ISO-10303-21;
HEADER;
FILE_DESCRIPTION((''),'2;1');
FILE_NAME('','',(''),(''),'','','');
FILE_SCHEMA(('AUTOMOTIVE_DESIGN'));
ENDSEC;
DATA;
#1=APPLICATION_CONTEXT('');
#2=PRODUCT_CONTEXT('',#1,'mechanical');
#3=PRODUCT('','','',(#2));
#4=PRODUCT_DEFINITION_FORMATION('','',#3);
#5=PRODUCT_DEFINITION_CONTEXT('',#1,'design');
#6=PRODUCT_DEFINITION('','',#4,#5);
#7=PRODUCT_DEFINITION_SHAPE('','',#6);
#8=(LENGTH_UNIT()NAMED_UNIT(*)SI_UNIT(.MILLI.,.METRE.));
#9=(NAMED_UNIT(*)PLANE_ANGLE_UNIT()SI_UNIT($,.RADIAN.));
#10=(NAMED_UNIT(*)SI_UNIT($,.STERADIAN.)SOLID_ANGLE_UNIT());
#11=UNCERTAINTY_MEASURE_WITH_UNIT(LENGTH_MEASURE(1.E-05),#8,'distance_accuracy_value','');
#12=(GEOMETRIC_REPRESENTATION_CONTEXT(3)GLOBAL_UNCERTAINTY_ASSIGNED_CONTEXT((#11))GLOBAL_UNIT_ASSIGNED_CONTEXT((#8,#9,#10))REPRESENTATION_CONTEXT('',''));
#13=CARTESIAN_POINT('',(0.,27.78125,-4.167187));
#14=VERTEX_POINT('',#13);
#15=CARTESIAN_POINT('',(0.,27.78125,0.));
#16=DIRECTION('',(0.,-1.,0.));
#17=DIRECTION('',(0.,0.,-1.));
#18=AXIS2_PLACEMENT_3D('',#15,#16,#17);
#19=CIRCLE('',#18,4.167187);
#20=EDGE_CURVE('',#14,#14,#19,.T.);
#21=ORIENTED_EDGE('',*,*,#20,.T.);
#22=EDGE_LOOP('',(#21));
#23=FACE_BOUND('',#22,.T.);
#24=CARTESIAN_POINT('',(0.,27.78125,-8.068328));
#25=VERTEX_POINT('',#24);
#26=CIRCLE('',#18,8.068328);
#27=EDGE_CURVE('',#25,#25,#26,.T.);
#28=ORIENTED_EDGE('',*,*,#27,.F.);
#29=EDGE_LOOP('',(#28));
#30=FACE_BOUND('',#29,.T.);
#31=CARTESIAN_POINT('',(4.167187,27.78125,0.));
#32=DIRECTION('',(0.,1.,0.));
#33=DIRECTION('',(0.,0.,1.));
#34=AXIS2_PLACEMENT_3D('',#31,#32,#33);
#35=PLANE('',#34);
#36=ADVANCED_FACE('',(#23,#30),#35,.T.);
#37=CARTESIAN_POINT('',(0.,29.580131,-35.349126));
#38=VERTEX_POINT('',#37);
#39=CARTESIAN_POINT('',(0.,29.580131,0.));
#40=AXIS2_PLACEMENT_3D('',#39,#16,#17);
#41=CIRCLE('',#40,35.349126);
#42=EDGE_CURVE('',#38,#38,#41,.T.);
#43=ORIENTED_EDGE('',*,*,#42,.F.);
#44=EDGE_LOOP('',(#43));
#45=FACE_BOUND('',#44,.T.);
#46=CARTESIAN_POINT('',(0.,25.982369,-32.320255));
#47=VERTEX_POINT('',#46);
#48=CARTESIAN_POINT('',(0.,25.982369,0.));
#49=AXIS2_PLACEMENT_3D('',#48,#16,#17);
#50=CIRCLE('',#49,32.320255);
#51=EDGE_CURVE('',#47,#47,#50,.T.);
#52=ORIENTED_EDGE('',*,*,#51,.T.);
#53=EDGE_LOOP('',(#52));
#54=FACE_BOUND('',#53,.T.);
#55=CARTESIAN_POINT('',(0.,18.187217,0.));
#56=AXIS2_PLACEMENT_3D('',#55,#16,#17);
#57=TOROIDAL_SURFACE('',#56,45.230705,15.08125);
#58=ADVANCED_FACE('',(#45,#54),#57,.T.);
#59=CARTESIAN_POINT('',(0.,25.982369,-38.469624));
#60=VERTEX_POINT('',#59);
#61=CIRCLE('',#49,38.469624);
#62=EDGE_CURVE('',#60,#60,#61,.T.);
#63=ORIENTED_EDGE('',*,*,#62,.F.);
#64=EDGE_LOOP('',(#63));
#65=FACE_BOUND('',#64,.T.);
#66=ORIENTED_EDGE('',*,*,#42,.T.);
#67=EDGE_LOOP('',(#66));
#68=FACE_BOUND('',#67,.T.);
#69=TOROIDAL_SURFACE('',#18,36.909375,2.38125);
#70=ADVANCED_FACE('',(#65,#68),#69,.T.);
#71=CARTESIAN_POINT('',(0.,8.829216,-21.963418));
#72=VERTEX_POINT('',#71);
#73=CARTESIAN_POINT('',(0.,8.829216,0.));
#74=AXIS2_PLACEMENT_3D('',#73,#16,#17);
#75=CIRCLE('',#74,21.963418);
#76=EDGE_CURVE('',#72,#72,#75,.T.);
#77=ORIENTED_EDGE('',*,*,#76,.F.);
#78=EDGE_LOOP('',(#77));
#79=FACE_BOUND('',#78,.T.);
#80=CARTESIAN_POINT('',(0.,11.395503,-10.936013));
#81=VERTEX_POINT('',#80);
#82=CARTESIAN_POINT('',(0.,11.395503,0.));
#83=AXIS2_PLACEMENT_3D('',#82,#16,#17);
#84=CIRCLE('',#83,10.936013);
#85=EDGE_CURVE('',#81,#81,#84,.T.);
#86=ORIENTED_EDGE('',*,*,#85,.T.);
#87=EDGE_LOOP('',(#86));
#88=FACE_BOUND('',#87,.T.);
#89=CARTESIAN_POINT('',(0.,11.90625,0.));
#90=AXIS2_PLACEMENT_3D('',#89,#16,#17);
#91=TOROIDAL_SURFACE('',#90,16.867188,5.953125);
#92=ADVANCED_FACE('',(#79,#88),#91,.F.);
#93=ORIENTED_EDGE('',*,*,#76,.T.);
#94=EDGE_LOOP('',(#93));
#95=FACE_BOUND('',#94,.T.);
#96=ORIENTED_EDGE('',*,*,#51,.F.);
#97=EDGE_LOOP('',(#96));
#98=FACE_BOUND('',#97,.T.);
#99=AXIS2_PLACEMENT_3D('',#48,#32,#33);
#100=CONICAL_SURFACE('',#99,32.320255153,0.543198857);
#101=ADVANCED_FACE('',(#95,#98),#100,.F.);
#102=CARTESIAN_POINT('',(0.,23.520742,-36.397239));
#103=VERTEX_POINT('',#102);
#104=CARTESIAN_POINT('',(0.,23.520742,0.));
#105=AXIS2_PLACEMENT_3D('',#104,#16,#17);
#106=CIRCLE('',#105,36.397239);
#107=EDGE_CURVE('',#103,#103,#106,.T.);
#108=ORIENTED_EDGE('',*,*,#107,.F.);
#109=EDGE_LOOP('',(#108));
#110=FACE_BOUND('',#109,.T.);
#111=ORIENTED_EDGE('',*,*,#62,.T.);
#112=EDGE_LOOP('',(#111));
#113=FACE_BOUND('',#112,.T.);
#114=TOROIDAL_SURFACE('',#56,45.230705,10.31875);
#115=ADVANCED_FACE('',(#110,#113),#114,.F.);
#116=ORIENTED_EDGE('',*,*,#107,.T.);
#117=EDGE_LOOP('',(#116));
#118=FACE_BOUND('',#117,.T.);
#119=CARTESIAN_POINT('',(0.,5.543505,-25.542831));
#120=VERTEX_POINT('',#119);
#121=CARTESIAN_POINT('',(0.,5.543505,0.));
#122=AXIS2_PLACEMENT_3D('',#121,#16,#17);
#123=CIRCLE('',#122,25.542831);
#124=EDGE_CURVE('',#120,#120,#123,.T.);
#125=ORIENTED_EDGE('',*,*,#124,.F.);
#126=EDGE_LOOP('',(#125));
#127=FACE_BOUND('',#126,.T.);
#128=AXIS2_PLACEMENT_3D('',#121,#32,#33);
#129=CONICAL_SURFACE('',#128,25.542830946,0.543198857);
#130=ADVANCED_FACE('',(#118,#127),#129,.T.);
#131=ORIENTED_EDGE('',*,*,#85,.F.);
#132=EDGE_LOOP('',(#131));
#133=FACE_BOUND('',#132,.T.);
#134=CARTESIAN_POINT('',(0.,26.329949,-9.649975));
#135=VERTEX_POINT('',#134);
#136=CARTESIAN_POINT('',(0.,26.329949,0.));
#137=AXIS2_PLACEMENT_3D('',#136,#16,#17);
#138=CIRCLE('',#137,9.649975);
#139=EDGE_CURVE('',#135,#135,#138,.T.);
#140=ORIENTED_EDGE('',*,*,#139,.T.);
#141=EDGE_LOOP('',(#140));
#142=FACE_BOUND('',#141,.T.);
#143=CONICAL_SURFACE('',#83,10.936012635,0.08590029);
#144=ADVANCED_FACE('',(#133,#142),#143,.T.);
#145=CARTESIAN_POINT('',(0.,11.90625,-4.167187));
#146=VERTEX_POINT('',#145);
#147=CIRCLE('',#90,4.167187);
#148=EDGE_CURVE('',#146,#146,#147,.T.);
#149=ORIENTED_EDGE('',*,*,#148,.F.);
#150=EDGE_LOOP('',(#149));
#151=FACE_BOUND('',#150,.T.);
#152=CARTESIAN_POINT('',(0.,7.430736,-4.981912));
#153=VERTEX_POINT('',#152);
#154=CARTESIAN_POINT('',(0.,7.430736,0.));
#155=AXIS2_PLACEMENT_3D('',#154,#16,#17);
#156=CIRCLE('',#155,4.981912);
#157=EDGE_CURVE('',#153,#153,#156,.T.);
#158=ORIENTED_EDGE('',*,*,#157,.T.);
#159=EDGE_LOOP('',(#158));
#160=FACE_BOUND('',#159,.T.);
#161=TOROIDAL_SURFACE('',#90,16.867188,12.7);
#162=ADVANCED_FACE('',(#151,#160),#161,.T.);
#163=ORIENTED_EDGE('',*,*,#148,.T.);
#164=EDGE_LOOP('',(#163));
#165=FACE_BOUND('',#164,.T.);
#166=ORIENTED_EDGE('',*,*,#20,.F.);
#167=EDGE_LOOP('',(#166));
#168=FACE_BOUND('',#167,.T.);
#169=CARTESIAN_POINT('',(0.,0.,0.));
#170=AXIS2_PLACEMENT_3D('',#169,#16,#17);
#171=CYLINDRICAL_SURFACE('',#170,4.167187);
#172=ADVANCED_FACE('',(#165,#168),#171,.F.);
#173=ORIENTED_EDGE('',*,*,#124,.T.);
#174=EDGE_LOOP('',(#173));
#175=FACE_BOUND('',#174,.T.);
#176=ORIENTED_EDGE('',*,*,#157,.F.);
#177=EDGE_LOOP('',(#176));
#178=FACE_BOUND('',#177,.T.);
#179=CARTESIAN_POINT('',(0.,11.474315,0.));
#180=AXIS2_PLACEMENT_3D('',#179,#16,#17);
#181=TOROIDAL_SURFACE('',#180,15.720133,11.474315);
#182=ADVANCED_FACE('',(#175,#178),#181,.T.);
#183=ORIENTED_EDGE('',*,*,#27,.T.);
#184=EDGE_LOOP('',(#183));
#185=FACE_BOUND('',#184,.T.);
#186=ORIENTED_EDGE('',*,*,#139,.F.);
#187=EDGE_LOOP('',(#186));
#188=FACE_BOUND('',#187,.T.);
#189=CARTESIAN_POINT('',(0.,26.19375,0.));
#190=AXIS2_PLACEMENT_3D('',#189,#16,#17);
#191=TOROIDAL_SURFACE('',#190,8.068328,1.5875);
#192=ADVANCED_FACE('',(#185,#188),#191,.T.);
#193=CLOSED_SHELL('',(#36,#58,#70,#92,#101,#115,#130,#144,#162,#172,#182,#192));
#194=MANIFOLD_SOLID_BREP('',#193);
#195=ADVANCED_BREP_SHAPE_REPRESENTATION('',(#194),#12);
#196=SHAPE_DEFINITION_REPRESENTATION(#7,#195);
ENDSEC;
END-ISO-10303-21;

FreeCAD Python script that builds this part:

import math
import FreeCAD as App
import Part
import Sketcher
from FreeCAD import Vector
Q = App.Units.Quantity

doc = App.newDocument("Part")
params = doc.addObject("Spreadsheet::Sheet", "Params")
for row, (alias, value) in enumerate([
    ("sketch1_radius", "0.5 in"),
    ("sketch1_radius2", "0.40625 in"),
    ("sketch1_radius3", "0.09375 in"),
    ("sketch1_radius4", "0.234375 in"),
    ("sketch1_radius5", "0.0625 in"),
    ("revolution_angle", "360 deg"),
], start=1):
    params.set(f"A{row}", alias)
    params.set(f"B{row}", "=" + value)
    params.setAlias(f"B{row}", alias)

body = doc.addObject("PartDesign::Body", "Body")

sketch1 = body.newObject("Sketcher::SketchObject", "Sketch")
sketch1.AttachmentSupport = (doc.getObject("XY_Plane"), [""])
sketch1.MapMode = "FlatFace"
sketch1.addGeometry([
    Part.LineSegment(Vector(8.1, 27.8, 0), Vector(4.2, 27.8, 0)),
    Part.LineSegment(Vector(4.2, 27.8, 0), Vector(4.2, 11.9, 0)),
    Part.ArcOfCircle(Part.Circle(Vector(16.9, 11.9, 0), Vector(0, 0, 1), 12.7), math.radians(-180), math.radians(-159)),
    Part.ArcOfCircle(Part.Circle(Vector(15.7, 11.5, 0), Vector(0, 0, 1), 11.5), math.radians(-159), math.radians(-31)),
    Part.LineSegment(Vector(25.5, 5.5, 0), Vector(36.4, 23.5, 0)),
    Part.ArcOfCircle(Part.Circle(Vector(45.2, 18.2, 0), Vector(0, 0, 1), 10.3), math.radians(130.94), math.radians(148.88)),
    Part.ArcOfCircle(Part.Circle(Vector(36.9, 27.8, 0), Vector(0, 0, 1), 2.4), math.radians(-49), math.radians(131)),
    Part.ArcOfCircle(Part.Circle(Vector(45.2, 18.2, 0), Vector(0, 0, 1), 15.1), math.radians(130.94), math.radians(148.88)),
    Part.LineSegment(Vector(32.3, 26, 0), Vector(22, 8.8, 0)),
    Part.ArcOfCircle(Part.Circle(Vector(16.9, 11.9, 0), Vector(0, 0, 1), 6), math.radians(-175), math.radians(-31)),
    Part.LineSegment(Vector(10.9, 11.4, 0), Vector(9.6, 26.3, 0)),
    Part.ArcOfCircle(Part.Circle(Vector(8.1, 26.2, 0), Vector(0, 0, 1), 1.6), math.radians(5), math.radians(90)),
], False)
sketch1.addConstraint([
    Sketcher.Constraint("Coincident", 0, 2, 1, 1),
    Sketcher.Constraint("Tangent", 1, 2, 2, 1),
    Sketcher.Constraint("Tangent", 2, 2, 3, 1),
    Sketcher.Constraint("Tangent", 3, 2, 4, 1),
    Sketcher.Constraint("Tangent", 4, 2, 5, 2),
    Sketcher.Constraint("Tangent", 5, 1, 6, 1),
    Sketcher.Constraint("Tangent", 6, 2, 7, 1),
    Sketcher.Constraint("Tangent", 7, 2, 8, 1),
    Sketcher.Constraint("Tangent", 8, 2, 9, 2),
    Sketcher.Constraint("Tangent", 9, 1, 10, 1),
    Sketcher.Constraint("Tangent", 10, 2, 11, 1),
    Sketcher.Constraint("Tangent", 11, 2, 0, 1),
    Sketcher.Constraint("Horizontal", 0),
    Sketcher.Constraint("Vertical", 1),
    Sketcher.Constraint("Coincident", 7, 3, 5, 3),
    Sketcher.Constraint("Coincident", 9, 3, 2, 3),
    Sketcher.Constraint("Parallel", 4, 8),
    Sketcher.Constraint("Horizontal", 6, 3, 0, 2),
    Sketcher.Constraint("Horizontal", 5, 1, 7, 2),
    Sketcher.Constraint("Radius", 2, Q("0.5 in")),
    Sketcher.Constraint("Radius", 5, Q("0.40625 in")),
    Sketcher.Constraint("Radius", 6, Q("0.09375 in")),
    Sketcher.Constraint("Radius", 9, Q("0.234375 in")),
    Sketcher.Constraint("Radius", 11, Q("0.0625 in")),
    Sketcher.Constraint("DistanceY", 1, 2, 1, 1, Q("0.625 in")),
    Sketcher.Constraint("DistanceY", -1, 1, 2, 3, Q("0.46875 in")),
    Sketcher.Constraint("DistanceX", -1, 1, 6, 3, Q("1.453125 in")),
    Sketcher.Constraint("Radius", 3, Q("11.474315 mm")),
    Sketcher.Constraint("DistanceX", 0, 2, 0, 1, Q("3.901141 mm")),
    Sketcher.Constraint("DistanceY", 3, 3, 5, 3, Q("6.712901 mm")),
])
sketch1.setExpression("Constraints[19]", "Params.sketch1_radius")
sketch1.setExpression("Constraints[20]", "Params.sketch1_radius2")
sketch1.setExpression("Constraints[21]", "Params.sketch1_radius3")
sketch1.setExpression("Constraints[22]", "Params.sketch1_radius4")
sketch1.setExpression("Constraints[23]", "Params.sketch1_radius5")
revolution = body.newObject("PartDesign::Revolution", "Revolution")
revolution.Profile = sketch1
revolution.ReferenceAxis = (sketch1, ["V_Axis"])
revolution.setExpression("Angle", "Params.revolution_angle")

doc.recompute()
